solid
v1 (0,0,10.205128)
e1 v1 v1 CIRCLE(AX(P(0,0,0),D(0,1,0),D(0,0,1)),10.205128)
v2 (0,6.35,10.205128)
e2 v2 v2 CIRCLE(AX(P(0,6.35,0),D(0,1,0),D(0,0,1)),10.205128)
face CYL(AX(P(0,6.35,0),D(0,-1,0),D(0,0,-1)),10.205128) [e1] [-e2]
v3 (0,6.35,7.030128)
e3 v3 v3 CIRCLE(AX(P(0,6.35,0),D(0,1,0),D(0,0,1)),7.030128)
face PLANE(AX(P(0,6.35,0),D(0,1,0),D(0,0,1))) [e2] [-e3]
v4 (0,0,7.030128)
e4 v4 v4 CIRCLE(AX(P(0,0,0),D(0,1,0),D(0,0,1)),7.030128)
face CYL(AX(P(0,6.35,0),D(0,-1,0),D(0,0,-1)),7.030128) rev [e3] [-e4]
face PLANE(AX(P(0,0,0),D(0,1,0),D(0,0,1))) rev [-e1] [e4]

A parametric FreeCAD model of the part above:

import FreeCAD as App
import Part
import Sketcher
from FreeCAD import Vector
Q = App.Units.Quantity

doc = App.newDocument("Part")
body = doc.addObject("PartDesign::Body", "Body")

# Sketch on XZ plane
sketch1 = body.newObject("Sketcher::SketchObject", "Sketch")
sketch1.AttachmentSupport = (doc.getObject("XZ_Plane"), [""])
sketch1.MapMode = "FlatFace"
sketch1.addGeometry(Part.Circle(Vector(0, 0, 0), Vector(0, 0, 1), 10), False)
sketch1.addGeometry(Part.Circle(Vector(0, 0, 0), Vector(0, 0, 1), 7), False)
sketch1.addConstraint(Sketcher.Constraint("Coincident", 0, 3, -1, 1))
sketch1.addConstraint(Sketcher.Constraint("Coincident", 1, 3, -1, 1))
sketch1.addConstraint(Sketcher.Constraint("Diameter", 0, 20.410256))
sketch1.addConstraint(Sketcher.Constraint("Diameter", 1, 14.060256))
pad1 = body.newObject("PartDesign::Pad", "Pad")
pad1.Profile = sketch1
pad1.Length = Q("0.25 in")
pad1.Reversed = True

doc.recompute()
